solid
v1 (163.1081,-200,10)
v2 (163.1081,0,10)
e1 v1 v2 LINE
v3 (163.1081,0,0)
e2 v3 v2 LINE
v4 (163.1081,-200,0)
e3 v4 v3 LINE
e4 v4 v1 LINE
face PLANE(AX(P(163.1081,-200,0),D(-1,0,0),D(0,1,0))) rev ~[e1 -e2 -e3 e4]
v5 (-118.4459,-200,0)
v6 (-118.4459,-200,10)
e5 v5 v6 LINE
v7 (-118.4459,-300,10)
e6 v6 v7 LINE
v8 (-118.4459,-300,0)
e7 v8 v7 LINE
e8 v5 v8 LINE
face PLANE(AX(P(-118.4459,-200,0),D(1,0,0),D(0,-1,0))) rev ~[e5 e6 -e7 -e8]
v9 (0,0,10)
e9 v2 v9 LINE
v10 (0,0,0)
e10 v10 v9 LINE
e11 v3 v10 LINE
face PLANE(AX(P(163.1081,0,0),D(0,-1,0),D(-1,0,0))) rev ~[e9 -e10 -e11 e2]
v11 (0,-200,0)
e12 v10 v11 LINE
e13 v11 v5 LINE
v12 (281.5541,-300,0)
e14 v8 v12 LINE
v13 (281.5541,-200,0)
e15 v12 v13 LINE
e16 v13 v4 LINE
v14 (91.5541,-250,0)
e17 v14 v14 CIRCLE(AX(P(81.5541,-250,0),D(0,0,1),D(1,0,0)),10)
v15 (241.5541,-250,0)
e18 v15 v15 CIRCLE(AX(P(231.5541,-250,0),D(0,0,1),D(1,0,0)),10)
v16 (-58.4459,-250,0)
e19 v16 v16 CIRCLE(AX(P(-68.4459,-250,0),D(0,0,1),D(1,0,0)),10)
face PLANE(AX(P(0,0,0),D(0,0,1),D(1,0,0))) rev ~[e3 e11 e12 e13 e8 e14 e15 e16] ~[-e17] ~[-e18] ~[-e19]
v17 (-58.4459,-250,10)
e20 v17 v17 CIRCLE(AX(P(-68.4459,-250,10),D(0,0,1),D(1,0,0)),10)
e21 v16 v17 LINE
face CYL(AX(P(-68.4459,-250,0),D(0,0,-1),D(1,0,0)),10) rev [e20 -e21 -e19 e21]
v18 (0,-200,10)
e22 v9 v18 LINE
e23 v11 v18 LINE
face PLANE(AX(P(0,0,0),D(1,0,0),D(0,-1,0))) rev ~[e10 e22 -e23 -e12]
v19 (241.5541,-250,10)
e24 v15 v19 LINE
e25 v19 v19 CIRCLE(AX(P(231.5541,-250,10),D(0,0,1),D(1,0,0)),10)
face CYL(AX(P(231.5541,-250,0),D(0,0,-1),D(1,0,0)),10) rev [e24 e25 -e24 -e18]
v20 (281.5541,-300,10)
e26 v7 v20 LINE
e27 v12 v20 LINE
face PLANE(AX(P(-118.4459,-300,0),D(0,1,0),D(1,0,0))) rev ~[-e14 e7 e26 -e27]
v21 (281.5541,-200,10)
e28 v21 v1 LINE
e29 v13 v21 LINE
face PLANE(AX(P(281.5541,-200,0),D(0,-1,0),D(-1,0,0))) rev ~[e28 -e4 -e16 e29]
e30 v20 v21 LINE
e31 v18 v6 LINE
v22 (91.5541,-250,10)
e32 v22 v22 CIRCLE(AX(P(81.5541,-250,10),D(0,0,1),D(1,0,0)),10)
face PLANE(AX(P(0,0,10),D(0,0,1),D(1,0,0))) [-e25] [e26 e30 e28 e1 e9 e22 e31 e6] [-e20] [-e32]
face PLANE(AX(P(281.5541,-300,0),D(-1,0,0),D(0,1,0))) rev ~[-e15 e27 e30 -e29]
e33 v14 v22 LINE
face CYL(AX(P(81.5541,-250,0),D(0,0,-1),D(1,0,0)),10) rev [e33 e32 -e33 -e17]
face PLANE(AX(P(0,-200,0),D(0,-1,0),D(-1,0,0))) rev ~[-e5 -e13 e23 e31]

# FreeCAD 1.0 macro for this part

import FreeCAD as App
import Part
import Sketcher
Q = App.Units.Quantity

doc = App.newDocument("Part")
params = doc.addObject("Spreadsheet::Sheet", "Params")
for row, (alias, value) in enumerate([
    ("sketch1_diameter", "20 mm"),
    ("sketch1_width", "400 mm"),
    ("sketch1_height", "200 mm"),
    ("sketch1_height2", "100 mm"),
    ("pad1_length", "10 mm"),
], start=1):
    params.set(f"A{row}", alias)
    params.set(f"B{row}", "=" + value)
    params.setAlias(f"B{row}", alias)

body = doc.addObject("PartDesign::Body", "Body")

# Sketch on XY plane
sketch1 = doc.addObject("Sketcher::SketchObject", "Sketch")
body.addObject(sketch1)
sketch1.AttachmentSupport = (doc.XY_Plane, [""])
sketch1.MapMode = "FlatFace"
sketch1.addGeometry([
    Part.LineSegment(App.Vector(282, -200, 0), App.Vector(163, -200, 0)),  # 0
    Part.LineSegment(App.Vector(163, -200, 0), App.Vector(163, 0, 0)),  # 1
    Part.LineSegment(App.Vector(163, 0, 0), App.Vector(0, 0, 0)),  # 2
    Part.LineSegment(App.Vector(0, 0, 0), App.Vector(0, -200, 0)),  # 3
    Part.LineSegment(App.Vector(0, -200, 0), App.Vector(-118, -200, 0)),  # 4
    Part.LineSegment(App.Vector(-118, -200, 0), App.Vector(-118, -300, 0)),  # 5
    Part.LineSegment(App.Vector(-118, -300, 0), App.Vector(282, -300, 0)),  # 6
    Part.LineSegment(App.Vector(282, -300, 0), App.Vector(282, -200, 0)),  # 7
    Part.Circle(App.Vector(-68, -250, 0), App.Vector(0, 0, 1), 10),  # 8
    Part.Circle(App.Vector(82, -250, 0), App.Vector(0, 0, 1), 10),  # 9
    Part.Circle(App.Vector(232, -250, 0), App.Vector(0, 0, 1), 10),  # 10
], False)
sketch1.addConstraint([
    Sketcher.Constraint("Coincident", 0, 2, 1, 1),
    Sketcher.Constraint("Coincident", 1, 2, 2, 1),
    Sketcher.Constraint("Coincident", 2, 2, 3, 1),
    Sketcher.Constraint("Coincident", 3, 2, 4, 1),
    Sketcher.Constraint("Coincident", 4, 2, 5, 1),
    Sketcher.Constraint("Coincident", 5, 2, 6, 1),
    Sketcher.Constraint("Coincident", 6, 2, 7, 1),
    Sketcher.Constraint("Coincident", 7, 2, 0, 1),
    Sketcher.Constraint("Horizontal", 0),
    Sketcher.Constraint("Vertical", 1),
    Sketcher.Constraint("Horizontal", 2),
    Sketcher.Constraint("Vertical", 3),
    Sketcher.Constraint("Horizontal", 4),
    Sketcher.Constraint("Vertical", 5),
    Sketcher.Constraint("Horizontal", 6),
    Sketcher.Constraint("Vertical", 7),
    Sketcher.Constraint("Coincident", 2, 2, -1, 1),
    Sketcher.Constraint("Equal", 8, 9),
    Sketcher.Constraint("Equal", 9, 10),
    Sketcher.Constraint("Horizontal", 8, 3, 9, 3),
    Sketcher.Constraint("Horizontal", 9, 3, 10, 3),
    Sketcher.Constraint("Horizontal", 0, 2, 3, 2),
    Sketcher.Constraint("Equal", 0, 4),
    Sketcher.Constraint("Diameter", 8, Q("20 mm")),
    Sketcher.Constraint("DistanceX", 6, 1, 6, 2, Q("400 mm")),
    Sketcher.Constraint("DistanceY", 1, 1, 1, 2, Q("200 mm")),
    Sketcher.Constraint("DistanceY", 5, 2, 5, 1, Q("100 mm")),
    Sketcher.Constraint("DistanceY", 10, 3, 0, 2, Q("50 mm")),
    Sketcher.Constraint("DistanceX", 4, 2, 8, 3, Q("50 mm")),
    Sketcher.Constraint("DistanceX", 4, 2, 9, 3, Q("200 mm")),
    Sketcher.Constraint("DistanceX", 10, 3, 6, 2, Q("50 mm")),
    Sketcher.Constraint("DistanceX", 0, 2, 0, 1, Q("118.446 mm")),
])
sketch1.setExpression("Constraints[23]", "Params.sketch1_diameter")
sketch1.setExpression("Constraints[24]", "Params.sketch1_width")
sketch1.setExpression("Constraints[25]", "Params.sketch1_height")
sketch1.setExpression("Constraints[26]", "Params.sketch1_height2")
pad1 = doc.addObject("PartDesign::Pad", "Pad")
body.addObject(pad1)
pad1.Profile = sketch1
pad1.setExpression("Length", "Params.pad1_length")

doc.recompute()
